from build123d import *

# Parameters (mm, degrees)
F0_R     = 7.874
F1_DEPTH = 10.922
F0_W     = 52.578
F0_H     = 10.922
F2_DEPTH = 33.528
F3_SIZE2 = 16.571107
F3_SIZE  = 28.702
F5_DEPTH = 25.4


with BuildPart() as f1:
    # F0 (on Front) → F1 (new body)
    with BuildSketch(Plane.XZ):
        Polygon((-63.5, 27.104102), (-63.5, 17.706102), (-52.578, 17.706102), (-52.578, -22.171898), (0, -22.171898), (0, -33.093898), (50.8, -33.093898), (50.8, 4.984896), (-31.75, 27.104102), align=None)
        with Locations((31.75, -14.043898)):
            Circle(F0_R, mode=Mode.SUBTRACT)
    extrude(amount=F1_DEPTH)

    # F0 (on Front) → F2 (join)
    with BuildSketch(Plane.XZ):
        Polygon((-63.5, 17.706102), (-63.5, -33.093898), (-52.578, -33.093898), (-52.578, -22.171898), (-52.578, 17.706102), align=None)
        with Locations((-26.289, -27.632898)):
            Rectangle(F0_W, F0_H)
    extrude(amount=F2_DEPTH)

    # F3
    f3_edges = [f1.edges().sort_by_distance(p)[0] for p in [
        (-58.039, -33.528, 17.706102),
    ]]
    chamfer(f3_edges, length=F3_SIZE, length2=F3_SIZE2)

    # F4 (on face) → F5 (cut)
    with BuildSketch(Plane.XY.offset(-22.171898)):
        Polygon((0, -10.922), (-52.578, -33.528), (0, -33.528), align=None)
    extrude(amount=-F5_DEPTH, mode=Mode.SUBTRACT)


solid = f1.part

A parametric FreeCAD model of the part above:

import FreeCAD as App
import Part
import Sketcher
Q = App.Units.Quantity


def edges_at(feature, points):
    """Names of the edges that pass closest to the given points."""
    edges = feature.Shape.Edges
    near = lambda p: min(range(len(edges)), key=lambda i: edges[i].distToShape(Part.Vertex(*p))[0])
    return sorted({f"Edge{near(p) + 1}" for p in points})


def add_polygon(sketch, points):
    """Adds a closed chain of lines whose ends are joined by coincident constraints."""
    first, n = sketch.GeometryCount, len(points)
    for a, b in zip(points, points[1:] + points[:1]):
        sketch.addGeometry(Part.LineSegment(App.Vector(*a, 0), App.Vector(*b, 0)), False)
    for i in range(n):
        sketch.addConstraint(Sketcher.Constraint("Coincident", first + i, 2, first + (i + 1) % n, 1))

doc = App.newDocument("Part")
params = doc.addObject("Spreadsheet::Sheet", "Params")
for row, (alias, value) in enumerate([
    ("sketch1_diameter", "0.62 in"),
    ("sketch1_width", "2 in"),
    ("sketch1_width2", "0.43 in"),
    ("sketch1_width3", "2.07 in"),
    ("sketch1_width4", "1.25 in"),
    ("pad1_length", "0.43 in"),
    ("sketch2_height", "2 in"),
    ("sketch2_width", "2.5 in"),
    ("sketch2_width2", "2.07 in"),
    ("pad2_length", "1.32 in"),
    ("chamfer_size", "1.13 in"),
    ("chamfer_size2", "16.571107 mm"),
    ("sketch3_width", "2.07 in"),
    ("sketch3_height", "0.89 in"),
    ("pocket1_length", "1 in"),
], start=1):
    params.set(f"A{row}", alias)
    params.set(f"B{row}", "=" + value)
    params.setAlias(f"B{row}", alias)

body = doc.addObject("PartDesign::Body", "Body")

# Sketch on XZ plane
sketch1 = body.newObject("Sketcher::SketchObject", "Sketch")
sketch1.AttachmentSupport = (doc.getObject("XZ_Plane"), [""])
sketch1.MapMode = "FlatFace"
add_polygon(sketch1, [(-64, 27), (-64, 18), (-53, 18), (-53, -22), (0, -22), (0, -33), (51, -33), (51, 5), (-32, 27)])  # lines 0-8
sketch1.addGeometry(Part.Circle(App.Vector(32, -14, 0), App.Vector(0, 0, 1), 8), False)  # 9
sketch1.addConstraint([
    Sketcher.Constraint("Vertical", 0),
    Sketcher.Constraint("Horizontal", 1),
    Sketcher.Constraint("Vertical", 2),
    Sketcher.Constraint("Horizontal", 3),
    Sketcher.Constraint("Vertical", 4),
    Sketcher.Constraint("Horizontal", 5),
    Sketcher.Constraint("Vertical", 6),
    Sketcher.Constraint("Horizontal", 8),
    Sketcher.Constraint("PointOnObject", 3, 2, -2),
    Sketcher.Constraint("Equal", 1, 4),
    Sketcher.Constraint("Diameter", 9, Q("0.62 in")),
    Sketcher.Constraint("DistanceX", 5, 1, 5, 2, Q("2 in")),
    Sketcher.Constraint("Angle", 7, Q("165 deg")),
    Sketcher.Constraint("DistanceY", 4, 2, 1, 2, Q("2 in")),
    Sketcher.Constraint("DistanceX", 1, 1, 1, 2, Q("0.43 in")),
    Sketcher.Constraint("DistanceX", 3, 1, 3, 2, Q("2.07 in")),
    Sketcher.Constraint("DistanceX", 8, 2, 8, 1, Q("1.25 in")),
    Sketcher.Constraint("DistanceY", 0, 2, 0, 1, Q("0.37 in")),
    Sketcher.Constraint("DistanceX", -1, 1, 9, 3, Q("1.25 in")),
    Sketcher.Constraint("DistanceY", 9, 3, 0, 2, Q("1.25 in")),
    Sketcher.Constraint("DistanceY", 4, 2, -1, 1, Q("33.093898 mm")),
])
sketch1.setExpression("Constraints[19]", "Params.sketch1_diameter")
sketch1.setExpression("Constraints[20]", "Params.sketch1_width")
sketch1.setExpression("Constraints[23]", "Params.sketch1_width2")
sketch1.setExpression("Constraints[24]", "Params.sketch1_width3")
sketch1.setExpression("Constraints[25]", "Params.sketch1_width4")
pad1 = body.newObject("PartDesign::Pad", "Pad")
pad1.Profile = sketch1
pad1.setExpression("Length", "Params.pad1_length")

# Sketch on XZ plane
sketch2 = body.newObject("Sketcher::SketchObject", "Sketch001")
sketch2.AttachmentSupport = (doc.getObject("XZ_Plane"), [""])
sketch2.MapMode = "FlatFace"
add_polygon(sketch2, [(-64, 18), (-64, -33), (0, -33), (0, -22), (-53, -22), (-53, 18)])  # lines 0-5
sketch2.addConstraint([
    Sketcher.Constraint("Vertical", 0),
    Sketcher.Constraint("Horizontal", 1),
    Sketcher.Constraint("Vertical", 2),
    Sketcher.Constraint("Horizontal", 3),
    Sketcher.Constraint("Vertical", 4),
    Sketcher.Constraint("Horizontal", 5),
    Sketcher.Constraint("PointOnObject", 1, 2, -2),
    Sketcher.Constraint("Equal", 5, 2),
    Sketcher.Constraint("DistanceY", 0, 2, 0, 1, Q("2 in")),
    Sketcher.Constraint("DistanceX", 1, 1, 1, 2, Q("2.5 in")),
    Sketcher.Constraint("DistanceX", 3, 2, 3, 1, Q("2.07 in")),
    Sketcher.Constraint("DistanceY", 0, 2, -1, 1, Q("33.093898 mm")),
])
sketch2.setExpression("Constraints[14]", "Params.sketch2_height")
sketch2.setExpression("Constraints[15]", "Params.sketch2_width")
sketch2.setExpression("Constraints[16]", "Params.sketch2_width2")
pad2 = body.newObject("PartDesign::Pad", "Pad001")
pad2.Profile = sketch2
pad2.setExpression("Length", "Params.pad2_length")
doc.recompute()

chamfer = body.newObject("PartDesign::Chamfer", "Chamfer")
chamfer.Base = (pad2, edges_at(pad2, [(-58.039, -33.528, 17.706)]))
chamfer.ChamferType = "Two distances"
chamfer.setExpression("Size", "Params.chamfer_size")
chamfer.setExpression("Size2", "Params.chamfer_size2")
chamfer.FlipDirection = True

# Sketch on XY plane
sketch3 = body.newObject("Sketcher::SketchObject", "Sketch002")
sketch3.AttachmentSupport = (doc.getObject("XY_Plane"), [""])
sketch3.MapMode = "FlatFace"
sketch3.AttachmentOffset = App.Placement(App.Vector(0, 0, -22.171898), App.Rotation())
add_polygon(sketch3, [(0, -11), (-53, -34), (0, -34)])  # lines 0-2
sketch3.addConstraint([
    Sketcher.Constraint("Horizontal", 1),
    Sketcher.Constraint("Vertical", 2),
    Sketcher.Constraint("PointOnObject", 1, 2, -2),
    Sketcher.Constraint("DistanceX", 1, 1, 1, 2, Q("2.07 in")),
    Sketcher.Constraint("DistanceY", 2, 1, 2, 2, Q("0.89 in")),
    Sketcher.Constraint("DistanceY", 0, 2, -1, 1, Q("1.32 in")),
])
sketch3.setExpression("Constraints[6]", "Params.sketch3_width")
sketch3.setExpression("Constraints[7]", "Params.sketch3_height")
pocket1 = body.newObject("PartDesign::Pocket", "Pocket")
pocket1.Profile = sketch3
pocket1.setExpression("Length", "Params.pocket1_length")

doc.recompute()
